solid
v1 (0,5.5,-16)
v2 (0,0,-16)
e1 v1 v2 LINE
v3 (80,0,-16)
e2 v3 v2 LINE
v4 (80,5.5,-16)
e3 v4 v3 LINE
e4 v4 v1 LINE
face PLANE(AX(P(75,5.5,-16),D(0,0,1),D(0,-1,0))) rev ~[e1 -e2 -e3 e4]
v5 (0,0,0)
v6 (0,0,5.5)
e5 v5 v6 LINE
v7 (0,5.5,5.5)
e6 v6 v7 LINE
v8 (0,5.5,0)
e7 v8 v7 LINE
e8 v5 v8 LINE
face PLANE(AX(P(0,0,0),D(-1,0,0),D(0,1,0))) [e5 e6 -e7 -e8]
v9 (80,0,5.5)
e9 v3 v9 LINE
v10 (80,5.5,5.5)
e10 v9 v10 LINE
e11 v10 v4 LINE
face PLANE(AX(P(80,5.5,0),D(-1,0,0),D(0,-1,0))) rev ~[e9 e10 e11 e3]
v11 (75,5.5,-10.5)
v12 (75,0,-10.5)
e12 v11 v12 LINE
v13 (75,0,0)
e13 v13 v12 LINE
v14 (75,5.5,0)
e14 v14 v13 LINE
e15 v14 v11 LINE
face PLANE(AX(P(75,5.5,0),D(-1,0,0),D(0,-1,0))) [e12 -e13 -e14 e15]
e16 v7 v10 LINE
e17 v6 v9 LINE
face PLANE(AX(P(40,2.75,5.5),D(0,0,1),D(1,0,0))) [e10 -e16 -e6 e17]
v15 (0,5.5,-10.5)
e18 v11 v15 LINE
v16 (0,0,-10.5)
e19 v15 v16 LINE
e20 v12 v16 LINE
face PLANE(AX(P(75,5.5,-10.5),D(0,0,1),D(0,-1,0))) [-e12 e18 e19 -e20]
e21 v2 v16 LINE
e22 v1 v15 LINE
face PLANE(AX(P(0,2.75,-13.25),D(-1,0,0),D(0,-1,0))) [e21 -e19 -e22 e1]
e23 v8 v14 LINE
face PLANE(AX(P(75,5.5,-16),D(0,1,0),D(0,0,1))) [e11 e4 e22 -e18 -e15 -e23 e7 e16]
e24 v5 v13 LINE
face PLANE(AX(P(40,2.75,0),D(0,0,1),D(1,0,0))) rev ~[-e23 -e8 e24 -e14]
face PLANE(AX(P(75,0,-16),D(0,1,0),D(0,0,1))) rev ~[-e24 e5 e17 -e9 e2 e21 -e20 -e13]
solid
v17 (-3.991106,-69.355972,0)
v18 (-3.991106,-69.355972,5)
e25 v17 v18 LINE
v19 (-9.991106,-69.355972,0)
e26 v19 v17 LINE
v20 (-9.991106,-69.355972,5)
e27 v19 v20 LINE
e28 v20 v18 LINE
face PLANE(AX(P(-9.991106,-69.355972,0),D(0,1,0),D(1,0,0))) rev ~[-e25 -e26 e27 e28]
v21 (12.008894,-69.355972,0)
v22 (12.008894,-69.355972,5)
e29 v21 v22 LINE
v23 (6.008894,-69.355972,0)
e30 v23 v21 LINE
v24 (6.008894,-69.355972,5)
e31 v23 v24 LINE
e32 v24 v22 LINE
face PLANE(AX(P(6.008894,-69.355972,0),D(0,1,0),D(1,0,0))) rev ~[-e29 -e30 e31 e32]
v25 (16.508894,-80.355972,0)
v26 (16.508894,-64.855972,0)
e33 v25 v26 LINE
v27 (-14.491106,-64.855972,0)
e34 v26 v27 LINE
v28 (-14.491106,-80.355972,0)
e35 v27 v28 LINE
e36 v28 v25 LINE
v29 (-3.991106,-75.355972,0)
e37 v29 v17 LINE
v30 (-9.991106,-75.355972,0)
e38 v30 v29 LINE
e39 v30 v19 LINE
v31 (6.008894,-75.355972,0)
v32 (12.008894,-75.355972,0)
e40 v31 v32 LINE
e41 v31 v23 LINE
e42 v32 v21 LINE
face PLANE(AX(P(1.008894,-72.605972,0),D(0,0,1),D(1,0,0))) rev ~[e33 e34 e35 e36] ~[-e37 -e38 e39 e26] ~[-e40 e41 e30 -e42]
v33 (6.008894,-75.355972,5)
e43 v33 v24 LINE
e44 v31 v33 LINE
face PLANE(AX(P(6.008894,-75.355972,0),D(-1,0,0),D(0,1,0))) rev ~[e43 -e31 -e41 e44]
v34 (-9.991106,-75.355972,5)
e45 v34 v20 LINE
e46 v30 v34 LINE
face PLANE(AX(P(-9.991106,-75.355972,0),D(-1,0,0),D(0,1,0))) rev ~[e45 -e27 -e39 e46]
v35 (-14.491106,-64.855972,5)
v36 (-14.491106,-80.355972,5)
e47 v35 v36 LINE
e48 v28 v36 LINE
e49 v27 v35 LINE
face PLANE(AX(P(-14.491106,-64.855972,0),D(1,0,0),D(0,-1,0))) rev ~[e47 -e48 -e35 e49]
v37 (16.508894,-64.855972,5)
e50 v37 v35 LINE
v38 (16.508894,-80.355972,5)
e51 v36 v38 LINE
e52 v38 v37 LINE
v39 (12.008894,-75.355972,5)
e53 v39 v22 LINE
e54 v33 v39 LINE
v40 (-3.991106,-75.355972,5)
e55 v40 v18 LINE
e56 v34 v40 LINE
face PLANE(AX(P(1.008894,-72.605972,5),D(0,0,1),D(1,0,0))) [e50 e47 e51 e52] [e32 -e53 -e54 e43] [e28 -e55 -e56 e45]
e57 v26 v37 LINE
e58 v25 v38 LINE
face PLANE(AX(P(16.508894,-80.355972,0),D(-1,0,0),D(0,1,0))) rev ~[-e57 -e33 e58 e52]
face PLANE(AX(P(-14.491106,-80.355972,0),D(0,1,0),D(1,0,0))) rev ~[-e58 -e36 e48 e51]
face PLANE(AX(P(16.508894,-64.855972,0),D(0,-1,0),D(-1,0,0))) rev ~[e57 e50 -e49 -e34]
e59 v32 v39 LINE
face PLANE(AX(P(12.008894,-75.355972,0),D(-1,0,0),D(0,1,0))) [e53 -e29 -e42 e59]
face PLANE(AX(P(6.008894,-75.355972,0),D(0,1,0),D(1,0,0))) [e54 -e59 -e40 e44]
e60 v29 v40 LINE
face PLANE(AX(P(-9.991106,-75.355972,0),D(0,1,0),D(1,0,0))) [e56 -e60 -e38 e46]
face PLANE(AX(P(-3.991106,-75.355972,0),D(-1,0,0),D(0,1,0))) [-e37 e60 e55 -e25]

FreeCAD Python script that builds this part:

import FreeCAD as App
import Part
import Sketcher

V = App.Vector
Q = App.Units.Quantity


def add_polygon(sketch, points):
    """Adds a closed chain of lines whose ends are joined by coincident constraints."""
    first, n = sketch.GeometryCount, len(points)
    for a, b in zip(points, points[1:] + points[:1]):
        sketch.addGeometry(Part.LineSegment(App.Vector(*a, 0), App.Vector(*b, 0)), False)
    for i in range(n):
        sketch.addConstraint(Sketcher.Constraint("Coincident", first + i, 2, first + (i + 1) % n, 1))

doc = App.newDocument("Part")
body = doc.addObject("PartDesign::Body", "Body")

sketch1 = body.newObject("Sketcher::SketchObject", "Sketch")
sketch1.AttachmentSupport = (doc.getObject("XY_Plane"), [""])
sketch1.MapMode = "FlatFace"
add_polygon(sketch1, [(0, 6), (0, 0), (80, 0), (80, 6)])
sketch1.addConstraint([
    Sketcher.Constraint("Vertical", 0),
    Sketcher.Constraint("Horizontal", 1),
    Sketcher.Constraint("Vertical", 2),
    Sketcher.Constraint("Horizontal", 3),
    Sketcher.Constraint("Coincident", 0, 2, -1, 1),
    Sketcher.Constraint("DistanceX", 1, 1, 1, 2, Q("80 mm")),
    Sketcher.Constraint("DistanceY", 0, 2, 0, 1, Q("5.5 mm")),
])
pad1 = body.newObject("PartDesign::Pad", "Pad")
pad1.Profile = sketch1
pad1.Length = 5.5

sketch2 = body.newObject("Sketcher::SketchObject", "Sketch001")
sketch2.AttachmentSupport = (doc.getObject("XY_Plane"), [""])
sketch2.MapMode = "FlatFace"
add_polygon(sketch2, [(75, 0), (75, 6), (80, 6), (80, 0)])
sketch2.addConstraint([
    Sketcher.Constraint("Vertical", 0),
    Sketcher.Constraint("Horizontal", 1),
    Sketcher.Constraint("Vertical", 2),
    Sketcher.Constraint("Horizontal", 3),
    Sketcher.Constraint("PointOnObject", 2, 2, -1),
    Sketcher.Constraint("DistanceX", 1, 1, 1, 2, Q("5 mm")),
    Sketcher.Constraint("DistanceY", 0, 1, 0, 2, Q("5.5 mm")),
    Sketcher.Constraint("DistanceX", -1, 1, 0, 2, Q("75 mm")),
])
pad2 = body.newObject("PartDesign::Pad", "Pad001")
pad2.Profile = sketch2
pad2.Length = 16
pad2.Reversed = True

sketch3 = body.newObject("Sketcher::SketchObject", "Sketch002")
sketch3.AttachmentSupport = (doc.getObject("YZ_Plane"), [""])
sketch3.MapMode = "FlatFace"
sketch3.AttachmentOffset = App.Placement(V(0, 0, 75), App.Rotation())
add_polygon(sketch3, [(6, -10), (6, -16), (0, -16), (0, -10)])
sketch3.addConstraint([
    Sketcher.Constraint("Vertical", 0),
    Sketcher.Constraint("Horizontal", 1),
    Sketcher.Constraint("Vertical", 2),
    Sketcher.Constraint("Horizontal", 3),
    Sketcher.Constraint("PointOnObject", 1, 2, -2),
    Sketcher.Constraint("Equal", 3, 0),
    Sketcher.Constraint("DistanceX", 1, 2, 1, 1, Q("5.5 mm")),
    Sketcher.Constraint("DistanceY", 0, 2, -1, 1, Q("16 mm")),
])
pad3 = body.newObject("PartDesign::Pad", "Pad002")
pad3.Profile = sketch3
pad3.Length = 75
pad3.Reversed = True
body2 = doc.addObject("PartDesign::Body", "Body001")

sketch4 = body2.newObject("Sketcher::SketchObject", "Sketch003")
sketch4.AttachmentSupport = (doc.getObject("XY_Plane001"), [""])
sketch4.MapMode = "FlatFace"
add_polygon(sketch4, [(17, -80), (17, -65), (-14, -65), (-14, -80)])
add_polygon(sketch4, [(-4, -75), (-10, -75), (-10, -69), (-4, -69)])
add_polygon(sketch4, [(12, -75), (6, -75), (6, -69), (12, -69)])
sketch4.addConstraint([
    Sketcher.Constraint("Vertical", 0),
    Sketcher.Constraint("Horizontal", 1),
    Sketcher.Constraint("Vertical", 2),
    Sketcher.Constraint("Horizontal", 3),
    Sketcher.Constraint("Horizontal", 4),
    Sketcher.Constraint("Vertical", 5),
    Sketcher.Constraint("Horizontal", 6),
    Sketcher.Constraint("Vertical", 7),
    Sketcher.Constraint("Horizontal", 8),
    Sketcher.Constraint("Vertical", 9),
    Sketcher.Constraint("Horizontal", 10),
    Sketcher.Constraint("Vertical", 11),
    Sketcher.Constraint("Horizontal", 7, 2, 8, 2),
    Sketcher.Constraint("Horizontal", 6, 2, 9, 2),
    Sketcher.Constraint("Equal", 6, 8),
    Sketcher.Constraint("Equal", 10, 5),
    Sketcher.Constraint("DistanceX", 1, 2, 1, 1, Q("31 mm")),
    Sketcher.Constraint("DistanceX", 4, 2, 4, 1, Q("6 mm")),
    Sketcher.Constraint("DistanceY", 0, 1, 0, 2, Q("15.5 mm")),
    Sketcher.Constraint("DistanceY", 2, 2, 4, 2, Q("5 mm")),
    Sketcher.Constraint("DistanceX", 7, 2, 8, 2, Q("10 mm")),
    Sketcher.Constraint("DistanceX", 2, 2, 4, 2, Q("4.5 mm")),
    Sketcher.Constraint("DistanceY", 0, 2, -1, 1, Q("64.855972 mm")),
    Sketcher.Constraint("DistanceX", -1, 1, 0, 2, Q("16.508894 mm")),
])
pad4 = body2.newObject("PartDesign::Pad", "Pad003")
pad4.Profile = sketch4
pad4.Length = 5

doc.recompute()
